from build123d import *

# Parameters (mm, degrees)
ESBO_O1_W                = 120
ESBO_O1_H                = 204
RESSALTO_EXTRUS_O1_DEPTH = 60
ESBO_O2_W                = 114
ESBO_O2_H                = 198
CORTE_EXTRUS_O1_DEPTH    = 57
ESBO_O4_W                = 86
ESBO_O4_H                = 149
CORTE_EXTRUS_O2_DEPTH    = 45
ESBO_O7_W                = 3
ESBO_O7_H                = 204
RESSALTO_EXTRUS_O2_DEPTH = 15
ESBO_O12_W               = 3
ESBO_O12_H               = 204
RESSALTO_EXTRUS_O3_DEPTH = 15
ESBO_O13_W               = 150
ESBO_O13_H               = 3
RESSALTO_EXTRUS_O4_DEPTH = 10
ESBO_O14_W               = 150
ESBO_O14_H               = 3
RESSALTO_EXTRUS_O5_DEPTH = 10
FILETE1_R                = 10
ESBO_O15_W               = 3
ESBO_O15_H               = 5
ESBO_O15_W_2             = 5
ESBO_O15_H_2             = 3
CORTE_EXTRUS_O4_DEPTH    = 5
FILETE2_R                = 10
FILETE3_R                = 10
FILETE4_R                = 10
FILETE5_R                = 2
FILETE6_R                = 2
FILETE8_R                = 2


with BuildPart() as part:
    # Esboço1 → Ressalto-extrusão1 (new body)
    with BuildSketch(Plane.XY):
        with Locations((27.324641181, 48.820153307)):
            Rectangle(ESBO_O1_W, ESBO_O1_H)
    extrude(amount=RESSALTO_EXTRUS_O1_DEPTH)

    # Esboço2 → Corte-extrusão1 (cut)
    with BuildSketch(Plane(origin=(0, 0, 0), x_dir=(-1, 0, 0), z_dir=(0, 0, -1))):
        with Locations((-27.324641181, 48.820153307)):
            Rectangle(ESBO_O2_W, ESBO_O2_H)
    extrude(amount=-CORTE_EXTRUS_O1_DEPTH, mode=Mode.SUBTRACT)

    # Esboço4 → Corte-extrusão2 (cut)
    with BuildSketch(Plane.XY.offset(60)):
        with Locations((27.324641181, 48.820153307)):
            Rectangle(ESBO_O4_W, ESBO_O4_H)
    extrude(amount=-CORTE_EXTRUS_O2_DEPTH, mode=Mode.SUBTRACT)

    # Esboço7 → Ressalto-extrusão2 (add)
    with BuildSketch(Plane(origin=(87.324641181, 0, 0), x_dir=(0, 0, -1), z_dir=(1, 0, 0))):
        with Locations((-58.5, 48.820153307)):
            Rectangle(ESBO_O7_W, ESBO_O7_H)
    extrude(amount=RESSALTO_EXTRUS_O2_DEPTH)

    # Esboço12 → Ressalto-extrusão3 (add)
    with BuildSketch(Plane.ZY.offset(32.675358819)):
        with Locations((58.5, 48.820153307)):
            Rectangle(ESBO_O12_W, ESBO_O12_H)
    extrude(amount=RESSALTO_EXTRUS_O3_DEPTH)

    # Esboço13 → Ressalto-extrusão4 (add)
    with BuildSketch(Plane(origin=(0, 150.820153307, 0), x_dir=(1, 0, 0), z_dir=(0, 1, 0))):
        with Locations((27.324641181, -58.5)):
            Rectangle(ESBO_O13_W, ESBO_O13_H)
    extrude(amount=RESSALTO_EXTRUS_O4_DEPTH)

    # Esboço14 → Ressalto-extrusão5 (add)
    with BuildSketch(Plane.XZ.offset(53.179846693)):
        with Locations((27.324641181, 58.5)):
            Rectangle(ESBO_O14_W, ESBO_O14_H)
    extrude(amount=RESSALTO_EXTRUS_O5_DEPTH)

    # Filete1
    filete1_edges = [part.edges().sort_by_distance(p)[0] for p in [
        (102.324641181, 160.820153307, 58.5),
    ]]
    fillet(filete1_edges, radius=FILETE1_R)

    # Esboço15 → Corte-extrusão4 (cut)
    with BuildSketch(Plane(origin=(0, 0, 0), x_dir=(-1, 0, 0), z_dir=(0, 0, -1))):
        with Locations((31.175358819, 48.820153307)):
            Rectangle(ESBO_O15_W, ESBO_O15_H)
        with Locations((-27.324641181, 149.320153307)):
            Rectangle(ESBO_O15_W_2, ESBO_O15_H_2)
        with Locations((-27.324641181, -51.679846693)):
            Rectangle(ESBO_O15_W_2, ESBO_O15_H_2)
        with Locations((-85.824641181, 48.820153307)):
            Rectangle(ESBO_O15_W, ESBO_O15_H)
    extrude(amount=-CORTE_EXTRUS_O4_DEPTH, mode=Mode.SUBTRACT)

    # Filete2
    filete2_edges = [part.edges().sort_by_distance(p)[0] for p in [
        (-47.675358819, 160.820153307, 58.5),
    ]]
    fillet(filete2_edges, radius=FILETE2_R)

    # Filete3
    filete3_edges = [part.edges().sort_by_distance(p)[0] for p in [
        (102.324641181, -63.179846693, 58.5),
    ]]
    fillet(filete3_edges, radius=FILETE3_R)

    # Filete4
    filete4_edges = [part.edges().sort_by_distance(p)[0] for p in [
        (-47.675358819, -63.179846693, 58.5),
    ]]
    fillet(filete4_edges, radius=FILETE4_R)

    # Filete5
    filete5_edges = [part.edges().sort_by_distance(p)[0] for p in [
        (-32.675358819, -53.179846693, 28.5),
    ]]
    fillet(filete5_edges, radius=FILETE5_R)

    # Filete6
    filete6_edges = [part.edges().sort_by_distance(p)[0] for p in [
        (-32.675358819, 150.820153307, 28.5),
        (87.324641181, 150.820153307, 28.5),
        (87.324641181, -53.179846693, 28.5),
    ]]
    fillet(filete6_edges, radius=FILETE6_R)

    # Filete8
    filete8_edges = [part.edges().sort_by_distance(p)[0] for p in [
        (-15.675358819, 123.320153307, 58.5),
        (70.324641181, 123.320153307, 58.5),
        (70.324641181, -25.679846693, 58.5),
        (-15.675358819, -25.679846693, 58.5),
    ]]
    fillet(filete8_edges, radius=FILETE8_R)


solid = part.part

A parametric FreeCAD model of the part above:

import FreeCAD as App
import Part
import Sketcher

V = App.Vector
Q = App.Units.Quantity


def edges_at(feature, points):
    """Names of the edges that pass closest to the given points."""
    edges = feature.Shape.Edges
    near = lambda p: min(range(len(edges)), key=lambda i: edges[i].distToShape(Part.Vertex(*p))[0])
    return sorted({f"Edge{near(p) + 1}" for p in points})


def add_polygon(sketch, points):
    """Adds a closed chain of lines whose ends are joined by coincident constraints."""
    first, n = sketch.GeometryCount, len(points)
    for a, b in zip(points, points[1:] + points[:1]):
        sketch.addGeometry(Part.LineSegment(App.Vector(*a, 0), App.Vector(*b, 0)), False)
    for i in range(n):
        sketch.addConstraint(Sketcher.Constraint("Coincident", first + i, 2, first + (i + 1) % n, 1))

doc = App.newDocument("Part")
params = doc.addObject("Spreadsheet::Sheet", "Params")
for row, (alias, value) in enumerate([
    ("sketch1_width", "120 mm"),
    ("sketch1_height", "204 mm"),
    ("pad1_length", "60 mm"),
    ("sketch2_width", "114 mm"),
    ("sketch2_height", "198 mm"),
    ("pocket1_length", "57 mm"),
    ("sketch3_width", "86 mm"),
    ("sketch3_height", "149 mm"),
    ("pocket2_length", "45 mm"),
    ("sketch4_width", "204 mm"),
    ("sketch4_height", "3 mm"),
    ("pad2_length", "15 mm"),
    ("sketch5_width", "204 mm"),
    ("sketch5_height", "3 mm"),
    ("pad3_length", "15 mm"),
    ("sketch6_width", "150 mm"),
    ("sketch6_height", "3 mm"),
    ("pad4_length", "10 mm"),
    ("sketch7_width", "150 mm"),
    ("sketch7_height", "3 mm"),
    ("pad5_length", "10 mm"),
    ("fillet_radius", "10 mm"),
    ("sketch8_width", "3 mm"),
    ("sketch8_width2", "5 mm"),
    ("pocket3_length", "5 mm"),
    ("fillet2_radius", "10 mm"),
    ("fillet3_radius", "10 mm"),
    ("fillet4_radius", "10 mm"),
    ("fillet5_radius", "2 mm"),
    ("fillet6_radius", "2 mm"),
    ("fillet7_radius", "2 mm"),
], start=1):
    params.set(f"A{row}", alias)
    params.set(f"B{row}", "=" + value)
    params.setAlias(f"B{row}", alias)

body = doc.addObject("PartDesign::Body", "Body")

sketch1 = body.newObject("Sketcher::SketchObject", "Sketch")
sketch1.AttachmentSupport = (doc.getObject("XY_Plane"), [""])
sketch1.MapMode = "FlatFace"
add_polygon(sketch1, [(-33, 151), (-33, -53), (87, -53), (87, 151)])
sketch1.addConstraint(Sketcher.Constraint("Vertical", 0))
sketch1.addConstraint(Sketcher.Constraint("Horizontal", 1))
sketch1.addConstraint(Sketcher.Constraint("Vertical", 2))
sketch1.addConstraint(Sketcher.Constraint("Horizontal", 3))
sketch1.addConstraint(Sketcher.Constraint("DistanceX", 1, 1, 1, 2, Q("120 mm")))
sketch1.addConstraint(Sketcher.Constraint("DistanceY", 0, 2, 0, 1, Q("204 mm")))
sketch1.addConstraint(Sketcher.Constraint("DistanceX", 0, 2, -1, 1, Q("32.675359 mm")))
sketch1.addConstraint(Sketcher.Constraint("DistanceY", 0, 2, -1, 1, Q("53.179847 mm")))
sketch1.setExpression("Constraints[8]", "Params.sketch1_width")
sketch1.setExpression("Constraints[9]", "Params.sketch1_height")
pad1 = body.newObject("PartDesign::Pad", "Pad")
pad1.Profile = sketch1
pad1.setExpression("Length", "Params.pad1_length")

sketch2 = body.newObject("Sketcher::SketchObject", "Sketch001")
sketch2.AttachmentSupport = (doc.getObject("XY_Plane"), [""])
sketch2.MapMode = "FlatFace"
add_polygon(sketch2, [(84, 148), (84, -50), (-30, -50), (-30, 148)])
sketch2.addConstraint(Sketcher.Constraint("Vertical", 0))
sketch2.addConstraint(Sketcher.Constraint("Horizontal", 1))
sketch2.addConstraint(Sketcher.Constraint("Vertical", 2))
sketch2.addConstraint(Sketcher.Constraint("Horizontal", 3))
sketch2.addConstraint(Sketcher.Constraint("DistanceX", 1, 2, 1, 1, Q("114 mm")))
sketch2.addConstraint(Sketcher.Constraint("DistanceY", 0, 2, 0, 1, Q("198 mm")))
sketch2.addConstraint(Sketcher.Constraint("DistanceX", -1, 1, 0, 2, Q("84.324641 mm")))
sketch2.addConstraint(Sketcher.Constraint("DistanceY", 0, 2, -1, 1, Q("50.179847 mm")))
sketch2.setExpression("Constraints[8]", "Params.sketch2_width")
sketch2.setExpression("Constraints[9]", "Params.sketch2_height")
pocket1 = body.newObject("PartDesign::Pocket", "Pocket")
pocket1.Profile = sketch2
pocket1.setExpression("Length", "Params.pocket1_length")
pocket1.Reversed = True

sketch3 = body.newObject("Sketcher::SketchObject", "Sketch002")
sketch3.AttachmentSupport = (doc.getObject("XY_Plane"), [""])
sketch3.MapMode = "FlatFace"
sketch3.AttachmentOffset = App.Placement(V(0, 0, 60), App.Rotation())
add_polygon(sketch3, [(-16, 123), (-16, -26), (70, -26), (70, 123)])
sketch3.addConstraint(Sketcher.Constraint("Vertical", 0))
sketch3.addConstraint(Sketcher.Constraint("Horizontal", 1))
sketch3.addConstraint(Sketcher.Constraint("Vertical", 2))
sketch3.addConstraint(Sketcher.Constraint("Horizontal", 3))
sketch3.addConstraint(Sketcher.Constraint("DistanceX", 1, 1, 1, 2, Q("86 mm")))
sketch3.addConstraint(Sketcher.Constraint("DistanceY", 0, 2, 0, 1, Q("149 mm")))
sketch3.addConstraint(Sketcher.Constraint("DistanceX", 0, 2, -1, 1, Q("15.675359 mm")))
sketch3.addConstraint(Sketcher.Constraint("DistanceY", 0, 2, -1, 1, Q("25.679847 mm")))
sketch3.setExpression("Constraints[8]", "Params.sketch3_width")
sketch3.setExpression("Constraints[9]", "Params.sketch3_height")
pocket2 = body.newObject("PartDesign::Pocket", "Pocket001")
pocket2.Profile = sketch3
pocket2.setExpression("Length", "Params.pocket2_length")

sketch4 = body.newObject("Sketcher::SketchObject", "Sketch003")
sketch4.AttachmentSupport = (doc.getObject("YZ_Plane"), [""])
sketch4.MapMode = "FlatFace"
sketch4.AttachmentOffset = App.Placement(V(0, 0, 87.324641), App.Rotation())
add_polygon(sketch4, [(150.8, 60), (-53.2, 60), (-53.2, 57), (150.8, 57)])
sketch4.addConstraint(Sketcher.Constraint("Horizontal", 0))
sketch4.addConstraint(Sketcher.Constraint("Vertical", 1))
sketch4.addConstraint(Sketcher.Constraint("Horizontal", 2))
sketch4.addConstraint(Sketcher.Constraint("Vertical", 3))
sketch4.addConstraint(Sketcher.Constraint("DistanceX", 0, 2, 0, 1, Q("204 mm")))
sketch4.addConstraint(Sketcher.Constraint("DistanceY", 1, 2, 1, 1, Q("3 mm")))
sketch4.addConstraint(Sketcher.Constraint("DistanceY", -1, 1, 0, 2, Q("60 mm")))
sketch4.addConstraint(Sketcher.Constraint("DistanceX", 0, 2, -1, 1, Q("53.179847 mm")))
sketch4.setExpression("Constraints[8]", "Params.sketch4_width")
sketch4.setExpression("Constraints[9]", "Params.sketch4_height")
pad2 = body.newObject("PartDesign::Pad", "Pad001")
pad2.Profile = sketch4
pad2.setExpression("Length", "Params.pad2_length")

sketch5 = body.newObject("Sketcher::SketchObject", "Sketch004")
sketch5.AttachmentSupport = (doc.getObject("YZ_Plane"), [""])
sketch5.MapMode = "FlatFace"
sketch5.AttachmentOffset = App.Placement(V(0, 0, -32.675359), App.Rotation())
add_polygon(sketch5, [(150.8, 57), (-53.2, 57), (-53.2, 60), (150.8, 60)])
sketch5.addConstraint(Sketcher.Constraint("Horizontal", 0))
sketch5.addConstraint(Sketcher.Constraint("Vertical", 1))
sketch5.addConstraint(Sketcher.Constraint("Horizontal", 2))
sketch5.addConstraint(Sketcher.Constraint("Vertical", 3))
sketch5.addConstraint(Sketcher.Constraint("DistanceX", 0, 2, 0, 1, Q("204 mm")))
sketch5.addConstraint(Sketcher.Constraint("DistanceY", 1, 1, 1, 2, Q("3 mm")))
sketch5.addConstraint(Sketcher.Constraint("DistanceY", -1, 1, 0, 2, Q("57 mm")))
sketch5.addConstraint(Sketcher.Constraint("DistanceX", 0, 2, -1, 1, Q("53.179847 mm")))
sketch5.setExpression("Constraints[8]", "Params.sketch5_width")
sketch5.setExpression("Constraints[9]", "Params.sketch5_height")
pad3 = body.newObject("PartDesign::Pad", "Pad002")
pad3.Profile = sketch5
pad3.setExpression("Length", "Params.pad3_length")
pad3.Reversed = True

sketch6 = body.newObject("Sketcher::SketchObject", "Sketch005")
sketch6.AttachmentSupport = (doc.getObject("XZ_Plane"), [""])
sketch6.MapMode = "FlatFace"
sketch6.AttachmentOffset = App.Placement(V(0, 0, -150.820153), App.Rotation())
add_polygon(sketch6, [(-47.7, 57), (-47.7, 60), (102.3, 60), (102.3, 57)])
sketch6.addConstraint(Sketcher.Constraint("Vertical", 0))
sketch6.addConstraint(Sketcher.Constraint("Horizontal", 1))
sketch6.addConstraint(Sketcher.Constraint("Vertical", 2))
sketch6.addConstraint(Sketcher.Constraint("Horizontal", 3))
sketch6.addConstraint(Sketcher.Constraint("DistanceX", 1, 1, 1, 2, Q("150 mm")))
sketch6.addConstraint(Sketcher.Constraint("DistanceY", 0, 1, 0, 2, Q("3 mm")))
sketch6.addConstraint(Sketcher.Constraint("DistanceY", -1, 1, 0, 2, Q("60 mm")))
sketch6.addConstraint(Sketcher.Constraint("DistanceX", 0, 2, -1, 1, Q("47.675359 mm")))
sketch6.setExpression("Constraints[8]", "Params.sketch6_width")
sketch6.setExpression("Constraints[9]", "Params.sketch6_height")
pad4 = body.newObject("PartDesign::Pad", "Pad003")
pad4.Profile = sketch6
pad4.setExpression("Length", "Params.pad4_length")
pad4.Reversed = True

sketch7 = body.newObject("Sketcher::SketchObject", "Sketch006")
sketch7.AttachmentSupport = (doc.getObject("XZ_Plane"), [""])
sketch7.MapMode = "FlatFace"
sketch7.AttachmentOffset = App.Placement(V(0, 0, 53.179847), App.Rotation())
add_polygon(sketch7, [(-47.7, 60), (-47.7, 57), (102.3, 57), (102.3, 60)])
sketch7.addConstraint(Sketcher.Constraint("Vertical", 0))
sketch7.addConstraint(Sketcher.Constraint("Horizontal", 1))
sketch7.addConstraint(Sketcher.Constraint("Vertical", 2))
sketch7.addConstraint(Sketcher.Constraint("Horizontal", 3))
sketch7.addConstraint(Sketcher.Constraint("DistanceX", 1, 1, 1, 2, Q("150 mm")))
sketch7.addConstraint(Sketcher.Constraint("DistanceY", 0, 2, 0, 1, Q("3 mm")))
sketch7.addConstraint(Sketcher.Constraint("DistanceY", -1, 1, 0, 2, Q("57 mm")))
sketch7.addConstraint(Sketcher.Constraint("DistanceX", 0, 2, -1, 1, Q("47.675359 mm")))
sketch7.setExpression("Constraints[8]", "Params.sketch7_width")
sketch7.setExpression("Constraints[9]", "Params.sketch7_height")
pad5 = body.newObject("PartDesign::Pad", "Pad004")
pad5.Profile = sketch7
pad5.setExpression("Length", "Params.pad5_length")
doc.recompute()

fillet = body.newObject("PartDesign::Fillet", "Fillet")
fillet.Base = (pad5, edges_at(pad5, [(102.325, 160.82, 58.5)]))
fillet.setExpression("Radius", "Params.fillet_radius")

sketch8 = body.newObject("Sketcher::SketchObject", "Sketch007")
sketch8.AttachmentSupport = (doc.getObject("XY_Plane"), [""])
sketch8.MapMode = "FlatFace"
add_polygon(sketch8, [(-29.7, 51.3), (-29.7, 46.3), (-32.7, 46.3), (-32.7, 51.3)])
add_polygon(sketch8, [(29.8, 150.8), (29.8, 147.8), (24.8, 147.8), (24.8, 150.8)])
add_polygon(sketch8, [(29.8, -50.2), (29.8, -53.2), (24.8, -53.2), (24.8, -50.2)])
add_polygon(sketch8, [(87.3, 51.3), (87.3, 46.3), (84.3, 46.3), (84.3, 51.3)])
sketch8.addConstraint(Sketcher.Constraint("Vertical", 0))
sketch8.addConstraint(Sketcher.Constraint("Horizontal", 1))
sketch8.addConstraint(Sketcher.Constraint("Vertical", 2))
sketch8.addConstraint(Sketcher.Constraint("Horizontal", 3))
sketch8.addConstraint(Sketcher.Constraint("Vertical", 4))
sketch8.addConstraint(Sketcher.Constraint("Horizontal", 5))
sketch8.addConstraint(Sketcher.Constraint("Vertical", 6))
sketch8.addConstraint(Sketcher.Constraint("Horizontal", 7))
sketch8.addConstraint(Sketcher.Constraint("Vertical", 8))
sketch8.addConstraint(Sketcher.Constraint("Horizontal", 9))
sketch8.addConstraint(Sketcher.Constraint("Vertical", 10))
sketch8.addConstraint(Sketcher.Constraint("Horizontal", 11))
sketch8.addConstraint(Sketcher.Constraint("Vertical", 12))
sketch8.addConstraint(Sketcher.Constraint("Horizontal", 13))
sketch8.addConstraint(Sketcher.Constraint("Vertical", 14))
sketch8.addConstraint(Sketcher.Constraint("Horizontal", 15))
sketch8.addConstraint(Sketcher.Constraint("Horizontal", 1, 2, 12, 2))
sketch8.addConstraint(Sketcher.Constraint("Horizontal", 3, 2, 14, 2))
sketch8.addConstraint(Sketcher.Constraint("Vertical", 7, 2, 8, 2))
sketch8.addConstraint(Sketcher.Constraint("Vertical", 6, 2, 9, 2))
sketch8.addConstraint(Sketcher.Constraint("Equal", 3, 13))
sketch8.addConstraint(Sketcher.Constraint("Equal", 11, 0))
sketch8.addConstraint(Sketcher.Constraint("Equal", 15, 4))
sketch8.addConstraint(Sketcher.Constraint("Equal", 6, 8))
sketch8.addConstraint(Sketcher.Constraint("DistanceX", 1, 2, 1, 1, Q("3 mm")))
sketch8.addConstraint(Sketcher.Constraint("DistanceX", 5, 2, 5, 1, Q("5 mm")))
sketch8.addConstraint(Sketcher.Constraint("DistanceY", 8, 2, 4, 2, Q("201 mm")))
sketch8.addConstraint(Sketcher.Constraint("DistanceX", 0, 2, 12, 2, Q("117 mm")))
sketch8.addConstraint(Sketcher.Constraint("DistanceX", 3, 2, 4, 2, Q("59.5 mm")))
sketch8.addConstraint(Sketcher.Constraint("DistanceY", 3, 2, 4, 2, Q("96.5 mm")))
sketch8.addConstraint(Sketcher.Constraint("DistanceX", 0, 2, -1, 1, Q("29.675359 mm")))
sketch8.addConstraint(Sketcher.Constraint("DistanceY", -1, 1, 0, 2, Q("46.320153 mm")))
sketch8.setExpression("Constraints[40]", "Params.sketch8_width")
sketch8.setExpression("Constraints[41]", "Params.sketch8_width2")
pocket3 = body.newObject("PartDesign::Pocket", "Pocket002")
pocket3.Profile = sketch8
pocket3.setExpression("Length", "Params.pocket3_length")
pocket3.Reversed = True
doc.recompute()

fillet2 = body.newObject("PartDesign::Fillet", "Fillet001")
fillet2.Base = (pocket3, edges_at(pocket3, [(-47.675, 160.82, 58.5)]))
fillet2.setExpression("Radius", "Params.fillet2_radius")
doc.recompute()

fillet3 = body.newObject("PartDesign::Fillet", "Fillet002")
fillet3.Base = (fillet2, edges_at(fillet2, [(102.325, -63.18, 58.5)]))
fillet3.setExpression("Radius", "Params.fillet3_radius")
doc.recompute()

fillet4 = body.newObject("PartDesign::Fillet", "Fillet003")
fillet4.Base = (fillet3, edges_at(fillet3, [(-47.675, -63.18, 58.5)]))
fillet4.setExpression("Radius", "Params.fillet4_radius")
doc.recompute()

fillet5 = body.newObject("PartDesign::Fillet", "Fillet004")
fillet5.Base = (fillet4, edges_at(fillet4, [(-32.675, -53.18, 28.5)]))
fillet5.setExpression("Radius", "Params.fillet5_radius")
doc.recompute()

fillet6 = body.newObject("PartDesign::Fillet", "Fillet005")
fillet6.Base = (fillet5, edges_at(fillet5, [(-32.675, 150.82, 28.5), (87.325, 150.82, 28.5), (87.325, -53.18, 28.5)]))
fillet6.setExpression("Radius", "Params.fillet6_radius")
doc.recompute()

fillet7 = body.newObject("PartDesign::Fillet", "Fillet006")
fillet7.Base = (fillet6, edges_at(fillet6, [
    (-15.675, 123.32, 58.5),
    (70.325, 123.32, 58.5),
    (70.325, -25.68, 58.5),
    (-15.675, -25.68, 58.5),
]))
fillet7.setExpression("Radius", "Params.fillet7_radius")

doc.recompute()
